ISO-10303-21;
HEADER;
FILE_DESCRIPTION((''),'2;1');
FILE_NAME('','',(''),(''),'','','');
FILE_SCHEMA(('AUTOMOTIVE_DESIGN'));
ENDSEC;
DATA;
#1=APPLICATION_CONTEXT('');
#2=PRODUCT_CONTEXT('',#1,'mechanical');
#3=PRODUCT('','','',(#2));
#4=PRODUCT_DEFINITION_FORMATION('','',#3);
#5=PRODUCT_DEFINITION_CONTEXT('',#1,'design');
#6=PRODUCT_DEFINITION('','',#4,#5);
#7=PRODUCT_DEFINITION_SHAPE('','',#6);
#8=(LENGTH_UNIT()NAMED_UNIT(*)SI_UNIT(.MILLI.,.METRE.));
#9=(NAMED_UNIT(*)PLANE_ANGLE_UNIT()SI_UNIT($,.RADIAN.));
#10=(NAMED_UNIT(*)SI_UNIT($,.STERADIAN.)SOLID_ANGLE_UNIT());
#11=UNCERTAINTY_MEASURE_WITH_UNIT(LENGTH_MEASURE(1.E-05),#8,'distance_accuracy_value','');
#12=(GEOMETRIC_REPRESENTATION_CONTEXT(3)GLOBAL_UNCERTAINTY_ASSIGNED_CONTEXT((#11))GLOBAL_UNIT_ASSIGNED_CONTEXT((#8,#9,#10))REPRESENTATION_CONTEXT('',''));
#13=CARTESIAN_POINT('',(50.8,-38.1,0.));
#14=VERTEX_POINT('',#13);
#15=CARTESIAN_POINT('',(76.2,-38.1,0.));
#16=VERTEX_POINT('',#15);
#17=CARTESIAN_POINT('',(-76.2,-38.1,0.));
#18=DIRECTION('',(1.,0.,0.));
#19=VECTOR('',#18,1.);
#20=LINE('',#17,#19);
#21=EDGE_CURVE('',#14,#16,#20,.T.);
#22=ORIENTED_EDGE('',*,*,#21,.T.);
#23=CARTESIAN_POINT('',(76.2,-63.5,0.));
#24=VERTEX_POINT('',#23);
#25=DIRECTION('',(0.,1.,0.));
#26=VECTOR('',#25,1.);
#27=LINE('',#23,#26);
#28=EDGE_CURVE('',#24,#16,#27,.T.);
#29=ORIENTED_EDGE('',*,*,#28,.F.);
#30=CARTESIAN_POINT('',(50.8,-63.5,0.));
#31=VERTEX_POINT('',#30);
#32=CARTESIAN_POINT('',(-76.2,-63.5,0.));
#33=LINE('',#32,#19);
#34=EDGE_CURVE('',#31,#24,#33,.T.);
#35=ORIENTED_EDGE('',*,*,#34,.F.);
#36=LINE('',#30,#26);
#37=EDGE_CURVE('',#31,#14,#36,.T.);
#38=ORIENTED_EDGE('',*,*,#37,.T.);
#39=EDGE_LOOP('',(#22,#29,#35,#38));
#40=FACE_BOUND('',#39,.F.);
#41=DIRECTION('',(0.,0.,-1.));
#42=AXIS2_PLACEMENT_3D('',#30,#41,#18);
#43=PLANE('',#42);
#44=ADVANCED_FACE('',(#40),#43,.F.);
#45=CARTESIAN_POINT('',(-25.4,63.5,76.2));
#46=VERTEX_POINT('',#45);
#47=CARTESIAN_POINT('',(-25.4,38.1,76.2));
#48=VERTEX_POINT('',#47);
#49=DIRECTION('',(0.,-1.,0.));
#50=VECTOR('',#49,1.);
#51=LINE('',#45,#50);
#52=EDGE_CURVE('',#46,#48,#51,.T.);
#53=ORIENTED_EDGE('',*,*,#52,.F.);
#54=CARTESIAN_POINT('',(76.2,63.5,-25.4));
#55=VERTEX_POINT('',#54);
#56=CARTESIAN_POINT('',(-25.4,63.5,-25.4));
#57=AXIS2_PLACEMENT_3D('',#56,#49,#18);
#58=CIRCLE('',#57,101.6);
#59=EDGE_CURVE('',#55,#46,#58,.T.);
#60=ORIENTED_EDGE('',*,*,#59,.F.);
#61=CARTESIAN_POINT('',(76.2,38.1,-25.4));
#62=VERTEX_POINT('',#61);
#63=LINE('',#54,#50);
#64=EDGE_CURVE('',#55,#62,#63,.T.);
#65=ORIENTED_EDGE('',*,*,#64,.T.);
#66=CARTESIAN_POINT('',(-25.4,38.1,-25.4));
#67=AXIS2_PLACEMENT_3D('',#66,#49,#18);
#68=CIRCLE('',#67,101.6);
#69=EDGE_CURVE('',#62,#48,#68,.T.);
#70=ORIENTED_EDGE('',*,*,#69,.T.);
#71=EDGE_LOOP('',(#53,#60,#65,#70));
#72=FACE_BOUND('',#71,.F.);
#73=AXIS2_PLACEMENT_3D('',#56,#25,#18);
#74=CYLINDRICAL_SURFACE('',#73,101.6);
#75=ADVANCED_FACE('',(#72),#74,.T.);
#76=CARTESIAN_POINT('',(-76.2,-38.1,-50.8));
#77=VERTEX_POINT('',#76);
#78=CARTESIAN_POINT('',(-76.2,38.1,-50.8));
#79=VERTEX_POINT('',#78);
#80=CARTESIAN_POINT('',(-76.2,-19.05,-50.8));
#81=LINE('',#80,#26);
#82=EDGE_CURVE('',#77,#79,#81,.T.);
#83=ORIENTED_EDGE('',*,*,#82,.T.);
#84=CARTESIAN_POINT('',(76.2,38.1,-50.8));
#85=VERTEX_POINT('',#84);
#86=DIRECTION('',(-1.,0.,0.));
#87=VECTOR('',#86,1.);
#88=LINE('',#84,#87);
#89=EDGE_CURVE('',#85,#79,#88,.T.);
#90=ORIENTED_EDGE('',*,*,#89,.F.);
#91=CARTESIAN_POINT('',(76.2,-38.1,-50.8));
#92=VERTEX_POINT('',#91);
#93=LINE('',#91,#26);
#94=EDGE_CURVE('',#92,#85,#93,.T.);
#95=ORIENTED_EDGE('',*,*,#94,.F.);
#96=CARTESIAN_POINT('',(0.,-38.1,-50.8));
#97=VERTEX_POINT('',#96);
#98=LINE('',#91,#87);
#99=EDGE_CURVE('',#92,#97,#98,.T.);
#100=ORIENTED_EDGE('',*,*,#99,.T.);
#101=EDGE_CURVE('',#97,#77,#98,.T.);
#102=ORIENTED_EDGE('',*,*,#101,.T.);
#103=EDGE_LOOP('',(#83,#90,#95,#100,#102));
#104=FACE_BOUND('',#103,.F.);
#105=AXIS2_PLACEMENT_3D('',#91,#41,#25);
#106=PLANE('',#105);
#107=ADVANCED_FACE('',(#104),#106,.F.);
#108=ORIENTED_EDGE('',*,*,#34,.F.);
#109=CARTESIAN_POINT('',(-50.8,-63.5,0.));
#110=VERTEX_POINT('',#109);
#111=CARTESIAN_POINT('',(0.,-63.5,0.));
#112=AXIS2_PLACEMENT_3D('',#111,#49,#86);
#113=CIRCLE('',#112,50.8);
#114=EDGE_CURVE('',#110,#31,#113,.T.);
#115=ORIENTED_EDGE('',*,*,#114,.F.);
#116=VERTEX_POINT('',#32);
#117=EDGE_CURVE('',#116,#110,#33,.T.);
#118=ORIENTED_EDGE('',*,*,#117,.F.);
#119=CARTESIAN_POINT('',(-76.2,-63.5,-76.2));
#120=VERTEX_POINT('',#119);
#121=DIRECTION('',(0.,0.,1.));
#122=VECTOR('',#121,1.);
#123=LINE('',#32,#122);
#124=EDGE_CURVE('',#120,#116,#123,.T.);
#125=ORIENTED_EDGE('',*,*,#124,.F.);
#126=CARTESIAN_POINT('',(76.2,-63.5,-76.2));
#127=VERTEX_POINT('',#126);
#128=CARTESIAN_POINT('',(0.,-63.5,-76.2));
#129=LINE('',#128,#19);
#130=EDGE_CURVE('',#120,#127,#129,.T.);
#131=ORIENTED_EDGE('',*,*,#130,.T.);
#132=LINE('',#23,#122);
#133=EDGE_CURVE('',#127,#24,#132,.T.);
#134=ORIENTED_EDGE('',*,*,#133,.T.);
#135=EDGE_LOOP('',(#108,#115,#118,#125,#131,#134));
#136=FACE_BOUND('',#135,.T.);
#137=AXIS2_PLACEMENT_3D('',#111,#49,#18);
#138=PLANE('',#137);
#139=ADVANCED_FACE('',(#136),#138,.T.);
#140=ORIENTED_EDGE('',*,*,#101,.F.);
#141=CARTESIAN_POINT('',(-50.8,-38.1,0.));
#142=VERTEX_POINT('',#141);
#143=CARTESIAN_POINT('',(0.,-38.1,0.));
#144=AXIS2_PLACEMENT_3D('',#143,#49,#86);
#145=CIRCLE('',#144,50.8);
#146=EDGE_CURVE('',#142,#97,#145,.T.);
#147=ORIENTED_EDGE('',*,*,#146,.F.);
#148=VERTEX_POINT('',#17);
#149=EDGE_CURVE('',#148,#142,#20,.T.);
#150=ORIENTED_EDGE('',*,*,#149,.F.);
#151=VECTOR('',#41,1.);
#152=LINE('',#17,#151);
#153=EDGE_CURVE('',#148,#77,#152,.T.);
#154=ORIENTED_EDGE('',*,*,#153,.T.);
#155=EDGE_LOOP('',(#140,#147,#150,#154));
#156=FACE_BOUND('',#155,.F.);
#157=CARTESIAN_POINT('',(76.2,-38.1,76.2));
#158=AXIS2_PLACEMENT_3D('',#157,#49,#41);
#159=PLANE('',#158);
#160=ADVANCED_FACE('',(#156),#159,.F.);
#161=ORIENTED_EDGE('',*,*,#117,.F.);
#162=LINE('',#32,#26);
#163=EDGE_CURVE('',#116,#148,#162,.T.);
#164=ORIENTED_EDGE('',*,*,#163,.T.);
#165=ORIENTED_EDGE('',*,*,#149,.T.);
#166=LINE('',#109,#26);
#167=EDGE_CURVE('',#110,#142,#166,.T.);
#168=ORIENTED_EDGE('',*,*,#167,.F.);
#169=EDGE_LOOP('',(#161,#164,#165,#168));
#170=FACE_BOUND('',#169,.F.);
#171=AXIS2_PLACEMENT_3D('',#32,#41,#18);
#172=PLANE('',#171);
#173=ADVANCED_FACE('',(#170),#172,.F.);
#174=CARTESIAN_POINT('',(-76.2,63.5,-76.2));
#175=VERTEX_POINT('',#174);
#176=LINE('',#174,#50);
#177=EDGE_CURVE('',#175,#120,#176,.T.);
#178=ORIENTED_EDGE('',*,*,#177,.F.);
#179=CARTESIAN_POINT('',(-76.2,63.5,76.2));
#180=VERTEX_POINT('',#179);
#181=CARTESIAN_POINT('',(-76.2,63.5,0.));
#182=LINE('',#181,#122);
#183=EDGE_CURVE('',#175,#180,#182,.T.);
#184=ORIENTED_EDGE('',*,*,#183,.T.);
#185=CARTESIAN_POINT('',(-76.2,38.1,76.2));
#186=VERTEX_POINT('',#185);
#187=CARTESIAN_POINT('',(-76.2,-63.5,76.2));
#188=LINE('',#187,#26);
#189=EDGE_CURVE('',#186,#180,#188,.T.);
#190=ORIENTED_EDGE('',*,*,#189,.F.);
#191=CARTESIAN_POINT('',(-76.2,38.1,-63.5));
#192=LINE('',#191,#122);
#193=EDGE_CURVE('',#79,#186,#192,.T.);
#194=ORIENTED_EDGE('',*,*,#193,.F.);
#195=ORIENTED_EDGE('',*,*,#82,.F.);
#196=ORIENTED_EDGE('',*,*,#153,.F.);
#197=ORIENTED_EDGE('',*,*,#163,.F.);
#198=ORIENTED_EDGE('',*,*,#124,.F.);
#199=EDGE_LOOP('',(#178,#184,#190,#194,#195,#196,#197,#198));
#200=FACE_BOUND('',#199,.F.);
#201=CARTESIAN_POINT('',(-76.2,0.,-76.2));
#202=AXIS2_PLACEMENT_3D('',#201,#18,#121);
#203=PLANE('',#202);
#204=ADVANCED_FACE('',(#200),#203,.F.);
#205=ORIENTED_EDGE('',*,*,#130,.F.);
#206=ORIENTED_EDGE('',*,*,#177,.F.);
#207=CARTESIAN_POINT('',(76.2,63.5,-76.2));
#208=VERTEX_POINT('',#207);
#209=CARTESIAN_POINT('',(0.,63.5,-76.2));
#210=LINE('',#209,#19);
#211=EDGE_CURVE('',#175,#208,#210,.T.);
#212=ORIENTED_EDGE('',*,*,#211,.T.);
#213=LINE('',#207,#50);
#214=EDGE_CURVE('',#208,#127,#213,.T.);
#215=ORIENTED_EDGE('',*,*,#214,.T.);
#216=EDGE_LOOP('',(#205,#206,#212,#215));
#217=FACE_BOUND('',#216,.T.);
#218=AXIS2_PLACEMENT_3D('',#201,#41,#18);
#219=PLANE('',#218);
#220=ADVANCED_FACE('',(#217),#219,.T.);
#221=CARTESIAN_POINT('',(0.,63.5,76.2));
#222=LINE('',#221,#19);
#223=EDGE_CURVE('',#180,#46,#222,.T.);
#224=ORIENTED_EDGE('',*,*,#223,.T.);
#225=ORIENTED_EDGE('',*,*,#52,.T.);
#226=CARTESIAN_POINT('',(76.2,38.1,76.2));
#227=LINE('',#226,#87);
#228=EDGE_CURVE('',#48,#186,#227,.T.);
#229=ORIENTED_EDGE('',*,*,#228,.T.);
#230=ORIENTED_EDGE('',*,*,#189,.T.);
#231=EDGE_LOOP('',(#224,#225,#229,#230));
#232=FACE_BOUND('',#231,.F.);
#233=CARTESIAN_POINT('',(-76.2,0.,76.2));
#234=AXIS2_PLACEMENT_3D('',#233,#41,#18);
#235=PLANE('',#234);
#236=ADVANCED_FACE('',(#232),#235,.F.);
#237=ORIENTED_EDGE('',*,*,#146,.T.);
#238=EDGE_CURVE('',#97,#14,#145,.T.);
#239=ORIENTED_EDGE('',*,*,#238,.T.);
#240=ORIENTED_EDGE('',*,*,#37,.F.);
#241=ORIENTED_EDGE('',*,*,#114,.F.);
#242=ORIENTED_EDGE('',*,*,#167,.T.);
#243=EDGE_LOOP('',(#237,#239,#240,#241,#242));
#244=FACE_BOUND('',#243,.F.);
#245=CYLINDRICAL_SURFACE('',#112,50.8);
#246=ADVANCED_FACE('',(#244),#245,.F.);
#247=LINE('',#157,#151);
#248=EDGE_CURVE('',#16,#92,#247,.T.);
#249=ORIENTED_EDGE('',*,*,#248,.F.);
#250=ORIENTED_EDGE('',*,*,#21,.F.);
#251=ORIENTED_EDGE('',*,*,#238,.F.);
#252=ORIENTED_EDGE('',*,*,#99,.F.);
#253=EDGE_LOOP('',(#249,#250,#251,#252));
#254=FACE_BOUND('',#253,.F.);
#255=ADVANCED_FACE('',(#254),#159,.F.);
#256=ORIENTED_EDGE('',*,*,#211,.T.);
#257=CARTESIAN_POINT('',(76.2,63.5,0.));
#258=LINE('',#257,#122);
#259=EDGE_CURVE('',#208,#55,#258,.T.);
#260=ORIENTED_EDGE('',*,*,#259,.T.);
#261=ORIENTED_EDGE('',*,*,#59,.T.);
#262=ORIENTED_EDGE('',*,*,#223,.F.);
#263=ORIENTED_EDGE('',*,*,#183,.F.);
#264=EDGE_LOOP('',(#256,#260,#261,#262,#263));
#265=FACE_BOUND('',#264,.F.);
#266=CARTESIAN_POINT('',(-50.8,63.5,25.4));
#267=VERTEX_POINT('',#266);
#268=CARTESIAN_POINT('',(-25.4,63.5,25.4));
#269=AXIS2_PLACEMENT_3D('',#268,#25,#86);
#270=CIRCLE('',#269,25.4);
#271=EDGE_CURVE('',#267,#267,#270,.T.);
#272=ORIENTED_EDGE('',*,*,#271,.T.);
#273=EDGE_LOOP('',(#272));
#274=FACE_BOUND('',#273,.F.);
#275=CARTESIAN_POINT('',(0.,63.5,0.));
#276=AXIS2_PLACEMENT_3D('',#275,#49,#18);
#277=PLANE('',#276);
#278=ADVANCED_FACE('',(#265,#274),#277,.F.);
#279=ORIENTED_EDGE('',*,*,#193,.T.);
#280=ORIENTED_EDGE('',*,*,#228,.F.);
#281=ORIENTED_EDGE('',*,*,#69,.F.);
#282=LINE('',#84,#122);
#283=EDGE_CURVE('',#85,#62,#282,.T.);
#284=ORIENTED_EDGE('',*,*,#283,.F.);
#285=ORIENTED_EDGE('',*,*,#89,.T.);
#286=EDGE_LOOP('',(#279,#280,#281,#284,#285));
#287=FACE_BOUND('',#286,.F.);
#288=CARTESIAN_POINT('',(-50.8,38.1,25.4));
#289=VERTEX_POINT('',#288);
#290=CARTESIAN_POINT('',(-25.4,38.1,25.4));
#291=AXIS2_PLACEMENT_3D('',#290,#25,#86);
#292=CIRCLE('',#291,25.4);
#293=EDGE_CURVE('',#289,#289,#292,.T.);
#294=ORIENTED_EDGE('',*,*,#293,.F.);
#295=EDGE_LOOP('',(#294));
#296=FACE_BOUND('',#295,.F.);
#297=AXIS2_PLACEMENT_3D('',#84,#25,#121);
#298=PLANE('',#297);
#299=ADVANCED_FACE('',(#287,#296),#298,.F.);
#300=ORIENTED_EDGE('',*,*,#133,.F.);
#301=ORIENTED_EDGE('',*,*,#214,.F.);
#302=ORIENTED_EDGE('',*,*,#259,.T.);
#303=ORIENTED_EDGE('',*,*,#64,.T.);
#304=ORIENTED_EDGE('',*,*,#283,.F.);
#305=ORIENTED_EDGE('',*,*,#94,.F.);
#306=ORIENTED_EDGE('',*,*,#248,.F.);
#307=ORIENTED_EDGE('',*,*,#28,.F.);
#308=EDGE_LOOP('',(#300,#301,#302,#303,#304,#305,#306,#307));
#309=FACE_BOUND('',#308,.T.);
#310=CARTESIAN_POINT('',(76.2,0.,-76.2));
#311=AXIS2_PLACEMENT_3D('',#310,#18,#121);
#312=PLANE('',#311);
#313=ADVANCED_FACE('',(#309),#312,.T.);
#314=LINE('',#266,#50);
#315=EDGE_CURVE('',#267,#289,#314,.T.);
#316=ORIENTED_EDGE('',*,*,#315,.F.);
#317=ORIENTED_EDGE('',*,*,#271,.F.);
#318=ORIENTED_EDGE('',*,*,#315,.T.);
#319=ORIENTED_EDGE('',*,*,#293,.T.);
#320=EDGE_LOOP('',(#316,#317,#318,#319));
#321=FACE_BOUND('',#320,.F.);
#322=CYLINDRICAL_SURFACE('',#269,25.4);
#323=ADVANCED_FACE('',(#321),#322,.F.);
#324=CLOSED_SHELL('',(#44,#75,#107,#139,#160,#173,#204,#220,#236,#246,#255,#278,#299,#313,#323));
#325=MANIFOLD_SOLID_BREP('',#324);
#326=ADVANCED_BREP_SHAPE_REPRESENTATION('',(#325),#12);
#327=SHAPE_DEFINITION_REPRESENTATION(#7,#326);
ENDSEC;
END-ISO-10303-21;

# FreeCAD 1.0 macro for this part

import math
import FreeCAD as App
import Part
import Sketcher
from FreeCAD import Vector
Q = App.Units.Quantity


def add_polygon(sketch, points):
    """Adds a closed chain of lines whose ends are joined by coincident constraints."""
    first, n = sketch.GeometryCount, len(points)
    for a, b in zip(points, points[1:] + points[:1]):
        sketch.addGeometry(Part.LineSegment(App.Vector(*a, 0), App.Vector(*b, 0)), False)
    for i in range(n):
        sketch.addConstraint(Sketcher.Constraint("Coincident", first + i, 2, first + (i + 1) % n, 1))

doc = App.newDocument("Part")
body = doc.addObject("PartDesign::Body", "Body")

# Sketch on XZ plane
sketch1 = body.newObject("Sketcher::SketchObject", "Sketch")
sketch1.AttachmentSupport = (doc.getObject("XZ_Plane"), [""])
sketch1.MapMode = "FlatFace"
add_polygon(sketch1, [(-76, 76), (-76, -76), (76, -76), (76, 76)])  # lines 0-3
sketch1.addConstraint(Sketcher.Constraint("Vertical", 0))
sketch1.addConstraint(Sketcher.Constraint("Horizontal", 1))
sketch1.addConstraint(Sketcher.Constraint("Vertical", 2))
sketch1.addConstraint(Sketcher.Constraint("Horizontal", 3))
sketch1.addConstraint(Sketcher.Constraint("Symmetric", 0, 2, 2, 2, -1, 1))
sketch1.addConstraint(Sketcher.Constraint("Equal", 3, 0))
sketch1.addConstraint(Sketcher.Constraint("DistanceX", 1, 1, 1, 2, Q("6 in")))
pad1 = body.newObject("PartDesign::Pad", "Pad")
pad1.Profile = sketch1
pad1.Length = Q("5 in")
pad1.Midplane = True

# Sketch on YZ plane
sketch2 = body.newObject("Sketcher::SketchObject", "Sketch001")
sketch2.AttachmentSupport = (doc.getObject("YZ_Plane"), [""])
sketch2.MapMode = "FlatFace"
sketch2.AttachmentOffset = App.Placement(Vector(0, 0, 3 * 25.4), App.Rotation())
add_polygon(sketch2, [(38, 76), (-38, 76), (-38, -51), (38, -51)])  # lines 0-3
sketch2.addConstraint(Sketcher.Constraint("Horizontal", 0))
sketch2.addConstraint(Sketcher.Constraint("Vertical", 1))
sketch2.addConstraint(Sketcher.Constraint("Horizontal", 2))
sketch2.addConstraint(Sketcher.Constraint("Vertical", 3))
sketch2.addConstraint(Sketcher.Constraint("DistanceX", 0, 2, 0, 1, Q("3 in")))
sketch2.addConstraint(Sketcher.Constraint("DistanceY", 1, 2, 1, 1, Q("5 in")))
sketch2.addConstraint(Sketcher.Constraint("DistanceY", -1, 1, 0, 2, Q("3 in")))
sketch2.addConstraint(Sketcher.Constraint("DistanceX", 0, 2, -1, 1, Q("1.5 in")))
pocket1 = body.newObject("PartDesign::Pocket", "Pocket")
pocket1.Profile = sketch2
pocket1.Type = "ThroughAll"

# Sketch on XZ plane
sketch3 = body.newObject("Sketcher::SketchObject", "Sketch002")
sketch3.AttachmentSupport = (doc.getObject("XZ_Plane"), [""])
sketch3.MapMode = "FlatFace"
sketch3.AttachmentOffset = App.Placement(Vector(0, 0, 2.5 * 25.4), App.Rotation())
sketch3.addGeometry(Part.LineSegment(Vector(76, 0, 0), Vector(76, 76, 0)), False)
sketch3.addGeometry(Part.LineSegment(Vector(76, 76, 0), Vector(-76, 76, 0)), False)
sketch3.addGeometry(Part.LineSegment(Vector(-76, 76, 0), Vector(-76, 0, 0)), False)
sketch3.addGeometry(Part.LineSegment(Vector(-76, 0, 0), Vector(-51, 0, 0)), False)
sketch3.addGeometry(Part.ArcOfCircle(Part.Circle(Vector(0, 0, 0), Vector(0, 0, 1), 51), math.radians(180), math.radians(360)), False)
sketch3.addGeometry(Part.LineSegment(Vector(51, 0, 0), Vector(76, 0, 0)), False)
sketch3.addConstraint(Sketcher.Constraint("Coincident", 0, 2, 1, 1))
sketch3.addConstraint(Sketcher.Constraint("Coincident", 1, 2, 2, 1))
sketch3.addConstraint(Sketcher.Constraint("Coincident", 2, 2, 3, 1))
sketch3.addConstraint(Sketcher.Constraint("Coincident", 3, 2, 4, 1))
sketch3.addConstraint(Sketcher.Constraint("Coincident", 4, 2, 5, 1))
sketch3.addConstraint(Sketcher.Constraint("Coincident", 5, 2, 0, 1))
sketch3.addConstraint(Sketcher.Constraint("Vertical", 0))
sketch3.addConstraint(Sketcher.Constraint("Horizontal", 1))
sketch3.addConstraint(Sketcher.Constraint("Vertical", 2))
sketch3.addConstraint(Sketcher.Constraint("Horizontal", 3))
sketch3.addConstraint(Sketcher.Constraint("Horizontal", 5))
sketch3.addConstraint(Sketcher.Constraint("Coincident", 4, 3, -1, 1))
sketch3.addConstraint(Sketcher.Constraint("Symmetric", 2, 2, 5, 2, -1, 1))
sketch3.addConstraint(Sketcher.Constraint("PointOnObject", 2, 2, -1))
sketch3.addConstraint(Sketcher.Constraint("Radius", 4, Q("2 in")))
sketch3.addConstraint(Sketcher.Constraint("DistanceX", 1, 2, 1, 1, Q("6 in")))
sketch3.addConstraint(Sketcher.Constraint("DistanceY", 0, 1, 0, 2, Q("3 in")))
pocket2 = body.newObject("PartDesign::Pocket", "Pocket001")
pocket2.Profile = sketch3
pocket2.Length = Q("1 in")

# Sketch on XZ plane
sketch4 = body.newObject("Sketcher::SketchObject", "Sketch003")
sketch4.AttachmentSupport = (doc.getObject("XZ_Plane"), [""])
sketch4.MapMode = "FlatFace"
sketch4.AttachmentOffset = App.Placement(Vector(0, 0, -2.5 * 25.4), App.Rotation())
sketch4.addGeometry(Part.LineSegment(Vector(-25, 76, 0), Vector(76, 76, 0)), False)
sketch4.addGeometry(Part.LineSegment(Vector(76, 76, 0), Vector(76, -25, 0)), False)
sketch4.addGeometry(Part.ArcOfCircle(Part.Circle(Vector(-25, -25, 0), Vector(0, 0, 1), 102), math.radians(0), math.radians(90)), False)
sketch4.addGeometry(Part.Circle(Vector(-25, 25, 0), Vector(0, 0, 1), 25), False)
sketch4.addConstraint(Sketcher.Constraint("Coincident", 0, 2, 1, 1))
sketch4.addConstraint(Sketcher.Constraint("Tangent", 1, 2, 2, 1))
sketch4.addConstraint(Sketcher.Constraint("Tangent", 2, 2, 0, 1))
sketch4.addConstraint(Sketcher.Constraint("Horizontal", 0))
sketch4.addConstraint(Sketcher.Constraint("Vertical", 1))
sketch4.addConstraint(Sketcher.Constraint("Symmetric", 2, 3, 3, 3, -1))
sketch4.addConstraint(Sketcher.Constraint("Diameter", 3, Q("2 in")))
sketch4.addConstraint(Sketcher.Constraint("Radius", 2, Q("4 in")))
sketch4.addConstraint(Sketcher.Constraint("DistanceX", 2, 3, -1, 1, Q("1 in")))
sketch4.addConstraint(Sketcher.Constraint("DistanceY", 2, 3, -1, 1, Q("1 in")))
pocket3 = body.newObject("PartDesign::Pocket", "Pocket002")
pocket3.Profile = sketch4
pocket3.Length = Q("1 in")
pocket3.Reversed = True

doc.recompute()
